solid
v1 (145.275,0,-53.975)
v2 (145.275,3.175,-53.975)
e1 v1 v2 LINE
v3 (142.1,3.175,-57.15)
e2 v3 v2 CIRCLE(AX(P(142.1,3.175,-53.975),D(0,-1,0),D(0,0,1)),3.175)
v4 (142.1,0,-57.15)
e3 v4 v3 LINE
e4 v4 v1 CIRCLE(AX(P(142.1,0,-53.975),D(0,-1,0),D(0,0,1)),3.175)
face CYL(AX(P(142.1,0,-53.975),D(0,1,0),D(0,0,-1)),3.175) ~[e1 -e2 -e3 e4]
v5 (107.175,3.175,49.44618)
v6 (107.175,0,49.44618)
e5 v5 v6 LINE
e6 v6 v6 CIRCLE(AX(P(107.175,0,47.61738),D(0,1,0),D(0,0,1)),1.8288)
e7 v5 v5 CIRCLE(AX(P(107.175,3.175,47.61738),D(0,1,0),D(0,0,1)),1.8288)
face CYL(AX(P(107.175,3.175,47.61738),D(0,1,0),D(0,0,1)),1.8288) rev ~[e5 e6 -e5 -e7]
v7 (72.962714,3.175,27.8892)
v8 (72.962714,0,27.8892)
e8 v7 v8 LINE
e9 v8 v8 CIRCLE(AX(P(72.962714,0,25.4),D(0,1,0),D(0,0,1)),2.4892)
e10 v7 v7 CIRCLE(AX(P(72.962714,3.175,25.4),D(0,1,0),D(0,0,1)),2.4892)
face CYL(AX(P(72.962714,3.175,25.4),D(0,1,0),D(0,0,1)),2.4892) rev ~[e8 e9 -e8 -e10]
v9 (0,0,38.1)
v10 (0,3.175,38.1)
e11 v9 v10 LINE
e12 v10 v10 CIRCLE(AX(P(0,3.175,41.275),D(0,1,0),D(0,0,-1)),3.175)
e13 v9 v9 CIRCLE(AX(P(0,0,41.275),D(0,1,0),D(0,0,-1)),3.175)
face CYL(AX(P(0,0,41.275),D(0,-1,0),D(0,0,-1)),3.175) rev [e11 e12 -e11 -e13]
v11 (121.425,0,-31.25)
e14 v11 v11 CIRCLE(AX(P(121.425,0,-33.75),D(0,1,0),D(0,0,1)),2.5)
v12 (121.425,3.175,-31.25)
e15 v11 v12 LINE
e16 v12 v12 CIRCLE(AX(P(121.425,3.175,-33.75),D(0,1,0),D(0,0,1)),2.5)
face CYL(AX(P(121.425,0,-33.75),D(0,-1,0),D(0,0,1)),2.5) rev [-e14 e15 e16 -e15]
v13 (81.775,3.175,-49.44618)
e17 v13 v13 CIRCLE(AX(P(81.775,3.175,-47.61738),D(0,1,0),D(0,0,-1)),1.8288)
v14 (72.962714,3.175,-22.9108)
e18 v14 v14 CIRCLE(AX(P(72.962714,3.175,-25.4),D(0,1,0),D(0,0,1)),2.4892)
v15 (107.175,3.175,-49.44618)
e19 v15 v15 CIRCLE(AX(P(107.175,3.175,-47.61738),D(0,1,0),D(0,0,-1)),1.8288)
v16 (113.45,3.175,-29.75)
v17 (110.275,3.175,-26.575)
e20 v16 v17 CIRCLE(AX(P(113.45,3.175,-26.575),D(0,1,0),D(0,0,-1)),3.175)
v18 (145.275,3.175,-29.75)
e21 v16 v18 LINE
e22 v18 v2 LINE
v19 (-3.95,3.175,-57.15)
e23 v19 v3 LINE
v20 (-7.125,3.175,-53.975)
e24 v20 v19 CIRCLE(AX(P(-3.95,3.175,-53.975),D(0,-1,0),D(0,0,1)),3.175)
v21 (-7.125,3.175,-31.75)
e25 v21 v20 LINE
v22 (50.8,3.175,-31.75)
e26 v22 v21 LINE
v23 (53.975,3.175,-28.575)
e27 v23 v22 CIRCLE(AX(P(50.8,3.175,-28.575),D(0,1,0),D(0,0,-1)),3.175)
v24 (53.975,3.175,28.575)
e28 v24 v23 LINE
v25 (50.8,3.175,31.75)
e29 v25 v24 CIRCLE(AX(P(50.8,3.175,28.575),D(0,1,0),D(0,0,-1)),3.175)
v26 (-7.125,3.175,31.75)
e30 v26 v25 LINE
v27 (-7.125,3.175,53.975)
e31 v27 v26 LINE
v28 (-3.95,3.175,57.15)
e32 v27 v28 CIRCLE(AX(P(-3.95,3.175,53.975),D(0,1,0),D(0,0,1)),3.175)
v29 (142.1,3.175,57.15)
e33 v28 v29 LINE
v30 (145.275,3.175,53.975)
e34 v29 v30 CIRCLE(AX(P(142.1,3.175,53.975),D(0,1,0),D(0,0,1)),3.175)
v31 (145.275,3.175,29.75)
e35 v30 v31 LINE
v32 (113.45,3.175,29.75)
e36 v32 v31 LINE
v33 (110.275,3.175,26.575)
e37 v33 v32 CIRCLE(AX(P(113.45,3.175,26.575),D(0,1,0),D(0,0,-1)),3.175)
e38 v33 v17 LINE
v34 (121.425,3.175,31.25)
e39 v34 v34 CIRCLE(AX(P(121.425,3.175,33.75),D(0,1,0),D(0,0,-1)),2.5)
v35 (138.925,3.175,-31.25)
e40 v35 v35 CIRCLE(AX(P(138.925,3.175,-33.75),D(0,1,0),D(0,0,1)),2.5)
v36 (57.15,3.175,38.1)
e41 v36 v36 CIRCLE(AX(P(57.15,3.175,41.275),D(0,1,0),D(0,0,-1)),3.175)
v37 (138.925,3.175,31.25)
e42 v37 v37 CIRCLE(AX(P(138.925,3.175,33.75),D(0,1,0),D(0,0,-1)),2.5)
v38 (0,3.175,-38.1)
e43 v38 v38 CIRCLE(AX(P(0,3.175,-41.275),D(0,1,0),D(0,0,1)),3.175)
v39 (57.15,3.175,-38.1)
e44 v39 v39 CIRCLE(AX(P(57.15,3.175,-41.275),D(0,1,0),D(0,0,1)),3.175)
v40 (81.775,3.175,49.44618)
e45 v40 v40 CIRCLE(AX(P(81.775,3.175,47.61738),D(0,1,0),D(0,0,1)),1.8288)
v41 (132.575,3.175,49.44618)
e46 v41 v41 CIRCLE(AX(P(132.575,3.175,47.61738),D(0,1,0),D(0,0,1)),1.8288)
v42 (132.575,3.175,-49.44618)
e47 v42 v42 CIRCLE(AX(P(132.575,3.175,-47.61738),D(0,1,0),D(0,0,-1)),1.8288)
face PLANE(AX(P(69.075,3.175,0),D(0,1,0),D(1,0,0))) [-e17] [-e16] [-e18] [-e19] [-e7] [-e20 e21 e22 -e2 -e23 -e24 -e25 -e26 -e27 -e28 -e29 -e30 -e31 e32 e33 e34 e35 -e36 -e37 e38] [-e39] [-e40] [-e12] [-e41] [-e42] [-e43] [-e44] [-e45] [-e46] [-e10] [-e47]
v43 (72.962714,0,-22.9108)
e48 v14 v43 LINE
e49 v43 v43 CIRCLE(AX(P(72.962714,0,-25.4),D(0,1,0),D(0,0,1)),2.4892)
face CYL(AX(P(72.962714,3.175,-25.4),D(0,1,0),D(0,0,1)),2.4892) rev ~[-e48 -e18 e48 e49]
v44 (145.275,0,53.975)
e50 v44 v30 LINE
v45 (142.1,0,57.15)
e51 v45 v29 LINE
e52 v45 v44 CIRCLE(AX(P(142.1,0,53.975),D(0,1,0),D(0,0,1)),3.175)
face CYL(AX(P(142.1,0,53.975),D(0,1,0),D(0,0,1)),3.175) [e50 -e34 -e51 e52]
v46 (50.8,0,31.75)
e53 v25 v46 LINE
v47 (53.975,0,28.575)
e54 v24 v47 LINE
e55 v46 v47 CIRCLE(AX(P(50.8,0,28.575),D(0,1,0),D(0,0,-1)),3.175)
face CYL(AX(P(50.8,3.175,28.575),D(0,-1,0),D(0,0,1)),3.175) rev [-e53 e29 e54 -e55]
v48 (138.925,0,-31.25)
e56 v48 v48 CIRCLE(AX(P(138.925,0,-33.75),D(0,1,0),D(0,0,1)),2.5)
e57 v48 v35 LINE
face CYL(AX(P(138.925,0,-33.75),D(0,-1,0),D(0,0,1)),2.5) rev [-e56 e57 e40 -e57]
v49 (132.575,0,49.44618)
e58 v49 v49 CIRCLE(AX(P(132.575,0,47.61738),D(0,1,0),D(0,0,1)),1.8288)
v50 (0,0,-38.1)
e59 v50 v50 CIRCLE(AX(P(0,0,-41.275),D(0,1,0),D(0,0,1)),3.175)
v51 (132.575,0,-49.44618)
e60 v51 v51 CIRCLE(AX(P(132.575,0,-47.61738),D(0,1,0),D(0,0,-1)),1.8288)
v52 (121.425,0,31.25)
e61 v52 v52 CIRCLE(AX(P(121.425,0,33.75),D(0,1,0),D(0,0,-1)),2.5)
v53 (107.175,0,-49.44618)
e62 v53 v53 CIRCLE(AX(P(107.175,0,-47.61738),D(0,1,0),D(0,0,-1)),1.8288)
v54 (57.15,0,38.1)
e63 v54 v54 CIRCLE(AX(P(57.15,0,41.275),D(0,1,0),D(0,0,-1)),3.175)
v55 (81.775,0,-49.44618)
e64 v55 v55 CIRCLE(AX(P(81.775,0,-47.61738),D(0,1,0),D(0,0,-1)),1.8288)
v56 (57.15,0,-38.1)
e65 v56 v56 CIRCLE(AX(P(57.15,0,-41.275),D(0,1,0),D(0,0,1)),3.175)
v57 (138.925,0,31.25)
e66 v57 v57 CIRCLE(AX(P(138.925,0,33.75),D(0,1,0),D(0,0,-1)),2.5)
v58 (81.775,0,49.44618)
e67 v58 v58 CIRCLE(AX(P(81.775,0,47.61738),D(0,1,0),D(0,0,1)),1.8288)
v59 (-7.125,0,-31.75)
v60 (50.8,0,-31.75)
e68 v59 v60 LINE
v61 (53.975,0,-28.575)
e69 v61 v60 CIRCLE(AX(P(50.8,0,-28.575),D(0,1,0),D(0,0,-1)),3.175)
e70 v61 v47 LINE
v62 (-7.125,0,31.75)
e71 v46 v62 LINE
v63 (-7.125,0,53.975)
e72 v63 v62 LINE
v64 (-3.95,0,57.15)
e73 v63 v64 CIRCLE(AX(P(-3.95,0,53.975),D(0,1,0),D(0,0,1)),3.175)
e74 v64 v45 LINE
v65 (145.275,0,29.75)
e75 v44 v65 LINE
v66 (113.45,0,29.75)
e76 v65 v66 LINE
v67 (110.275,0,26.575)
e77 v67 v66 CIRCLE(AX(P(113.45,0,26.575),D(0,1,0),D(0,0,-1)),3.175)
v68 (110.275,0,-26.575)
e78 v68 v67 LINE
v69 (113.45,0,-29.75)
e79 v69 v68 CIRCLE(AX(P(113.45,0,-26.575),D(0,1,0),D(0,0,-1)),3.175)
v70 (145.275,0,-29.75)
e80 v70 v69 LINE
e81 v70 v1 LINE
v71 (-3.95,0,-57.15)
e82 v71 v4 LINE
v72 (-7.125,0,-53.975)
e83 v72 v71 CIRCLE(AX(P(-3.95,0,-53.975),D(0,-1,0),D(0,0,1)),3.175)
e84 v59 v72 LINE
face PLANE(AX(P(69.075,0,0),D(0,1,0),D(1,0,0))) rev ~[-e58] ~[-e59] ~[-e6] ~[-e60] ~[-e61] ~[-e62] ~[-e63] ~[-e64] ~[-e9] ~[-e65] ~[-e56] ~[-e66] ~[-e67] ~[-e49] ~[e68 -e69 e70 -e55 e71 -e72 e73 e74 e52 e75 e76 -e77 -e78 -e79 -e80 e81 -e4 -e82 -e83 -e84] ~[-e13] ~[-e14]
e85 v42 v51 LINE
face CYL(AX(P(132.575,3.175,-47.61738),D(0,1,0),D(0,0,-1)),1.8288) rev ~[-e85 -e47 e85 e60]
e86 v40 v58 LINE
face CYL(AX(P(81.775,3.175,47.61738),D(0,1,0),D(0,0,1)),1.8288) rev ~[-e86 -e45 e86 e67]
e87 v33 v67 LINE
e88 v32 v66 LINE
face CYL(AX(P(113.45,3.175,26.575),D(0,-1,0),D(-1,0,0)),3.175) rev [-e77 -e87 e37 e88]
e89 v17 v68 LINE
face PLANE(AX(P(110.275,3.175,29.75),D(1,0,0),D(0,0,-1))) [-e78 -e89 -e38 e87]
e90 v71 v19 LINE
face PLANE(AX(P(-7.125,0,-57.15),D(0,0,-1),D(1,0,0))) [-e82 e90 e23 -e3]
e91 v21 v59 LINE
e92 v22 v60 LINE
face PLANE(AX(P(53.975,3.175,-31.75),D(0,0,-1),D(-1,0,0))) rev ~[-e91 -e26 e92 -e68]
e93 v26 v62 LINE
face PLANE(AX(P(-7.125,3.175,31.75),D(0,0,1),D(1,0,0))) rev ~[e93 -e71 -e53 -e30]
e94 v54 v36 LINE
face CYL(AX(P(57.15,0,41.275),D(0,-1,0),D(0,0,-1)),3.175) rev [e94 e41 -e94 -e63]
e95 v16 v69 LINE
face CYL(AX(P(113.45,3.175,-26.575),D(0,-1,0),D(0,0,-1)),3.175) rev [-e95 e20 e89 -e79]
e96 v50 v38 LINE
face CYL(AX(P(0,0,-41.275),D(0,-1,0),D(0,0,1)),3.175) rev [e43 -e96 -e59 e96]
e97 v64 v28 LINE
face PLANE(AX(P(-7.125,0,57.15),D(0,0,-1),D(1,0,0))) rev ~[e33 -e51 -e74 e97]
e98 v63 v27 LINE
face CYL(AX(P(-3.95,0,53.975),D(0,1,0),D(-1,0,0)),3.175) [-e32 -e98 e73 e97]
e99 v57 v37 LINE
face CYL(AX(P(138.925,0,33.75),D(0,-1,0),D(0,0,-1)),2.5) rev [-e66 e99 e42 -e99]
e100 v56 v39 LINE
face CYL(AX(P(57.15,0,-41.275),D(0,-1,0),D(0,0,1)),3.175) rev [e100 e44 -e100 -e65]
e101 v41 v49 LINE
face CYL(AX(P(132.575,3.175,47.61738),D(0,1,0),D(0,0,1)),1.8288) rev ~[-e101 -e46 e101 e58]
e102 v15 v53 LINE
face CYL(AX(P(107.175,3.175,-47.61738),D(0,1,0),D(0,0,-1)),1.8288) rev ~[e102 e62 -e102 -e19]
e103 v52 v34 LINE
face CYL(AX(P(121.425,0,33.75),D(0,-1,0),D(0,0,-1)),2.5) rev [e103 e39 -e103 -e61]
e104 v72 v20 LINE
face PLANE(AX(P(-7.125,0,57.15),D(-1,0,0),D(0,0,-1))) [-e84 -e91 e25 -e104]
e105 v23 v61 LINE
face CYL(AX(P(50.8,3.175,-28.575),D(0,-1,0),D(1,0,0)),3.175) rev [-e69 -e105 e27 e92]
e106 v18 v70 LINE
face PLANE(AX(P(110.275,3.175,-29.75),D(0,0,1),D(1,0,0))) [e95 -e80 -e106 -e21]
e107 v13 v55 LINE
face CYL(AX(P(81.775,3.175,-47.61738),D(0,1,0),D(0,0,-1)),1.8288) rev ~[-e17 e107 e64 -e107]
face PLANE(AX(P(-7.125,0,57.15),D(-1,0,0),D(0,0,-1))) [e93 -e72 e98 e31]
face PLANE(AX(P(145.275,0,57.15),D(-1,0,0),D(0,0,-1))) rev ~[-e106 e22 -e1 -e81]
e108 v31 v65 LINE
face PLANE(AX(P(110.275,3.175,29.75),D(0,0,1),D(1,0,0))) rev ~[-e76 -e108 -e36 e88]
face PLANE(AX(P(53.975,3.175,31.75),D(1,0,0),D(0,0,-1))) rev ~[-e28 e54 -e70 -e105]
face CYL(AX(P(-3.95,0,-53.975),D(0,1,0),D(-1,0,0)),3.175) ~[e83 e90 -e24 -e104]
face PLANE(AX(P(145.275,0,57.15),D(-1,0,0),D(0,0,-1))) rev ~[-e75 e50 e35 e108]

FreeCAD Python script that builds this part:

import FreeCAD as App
import Part
import Sketcher
Q = App.Units.Quantity


def edges_at(feature, points):
    """Names of the edges that pass closest to the given points."""
    edges = feature.Shape.Edges
    near = lambda p: min(range(len(edges)), key=lambda i: edges[i].distToShape(Part.Vertex(*p))[0])
    return sorted({f"Edge{near(p) + 1}" for p in points})

doc = App.newDocument("Part")
body = doc.addObject("PartDesign::Body", "Body")

# Sketch on XZ plane
sketch1 = doc.addObject("Sketcher::SketchObject", "Sketch")
body.addObject(sketch1)
sketch1.AttachmentSupport = (doc.XZ_Plane, [""])
sketch1.MapMode = "FlatFace"
sketch1.addGeometry([
    Part.LineSegment(App.Vector(-7.125, -57.15, 0), App.Vector(-7.125, 57.15, 0)),  # 0
    Part.LineSegment(App.Vector(-7.125, 57.15, 0), App.Vector(145.275, 57.15, 0)),  # 1
    Part.LineSegment(App.Vector(145.275, 57.15, 0), App.Vector(145.275, -57.15, 0)),  # 2
    Part.LineSegment(App.Vector(145.275, -57.15, 0), App.Vector(-7.125, -57.15, 0)),  # 3
    Part.Circle(App.Vector(0, 41.275, 0), App.Vector(0, 0, 1), 3.175),  # 4
    Part.Circle(App.Vector(57.15, 41.275, 0), App.Vector(0, 0, 1), 3.175),  # 5
    Part.Circle(App.Vector(121.425, 33.75, 0), App.Vector(0, 0, 1), 2.5),  # 6
    Part.Circle(App.Vector(138.925, 33.75, 0), App.Vector(0, 0, 1), 2.5),  # 7
    Part.Circle(App.Vector(0, -41.275, 0), App.Vector(0, 0, 1), 3.175),  # 8
    Part.Circle(App.Vector(57.15, -41.275, 0), App.Vector(0, 0, 1), 3.175),  # 9
    Part.Circle(App.Vector(121.425, -33.75, 0), App.Vector(0, 0, 1), 2.5),  # 10
    Part.Circle(App.Vector(138.925, -33.75, 0), App.Vector(0, 0, 1), 2.5),  # 11
], False)
sketch1.addConstraint([
    Sketcher.Constraint("Coincident", 0, 2, 1, 1),
    Sketcher.Constraint("Coincident", 1, 2, 2, 1),
    Sketcher.Constraint("Coincident", 2, 2, 3, 1),
    Sketcher.Constraint("Coincident", 3, 2, 0, 1),
    Sketcher.Constraint("Vertical", 0),
    Sketcher.Constraint("Horizontal", 1),
    Sketcher.Constraint("Vertical", 2),
    Sketcher.Constraint("Horizontal", 3),
    Sketcher.Constraint("Equal", 4, 5),
    Sketcher.Constraint("Equal", 6, 7),
    Sketcher.Constraint("Equal", 5, 8),
    Sketcher.Constraint("Equal", 8, 9),
    Sketcher.Constraint("Equal", 7, 10),
    Sketcher.Constraint("Equal", 10, 11),
    Sketcher.Constraint("Symmetric", 4, 3, 8, 3, -1, 1),
    Sketcher.Constraint("Symmetric", 5, 3, 9, 3, -1),
    Sketcher.Constraint("Symmetric", 6, 3, 10, 3, -1),
    Sketcher.Constraint("Symmetric", 7, 3, 11, 3, -1),
    Sketcher.Constraint("PointOnObject", 4, 3, -2),
    Sketcher.Constraint("Horizontal", 4, 3, 5, 3),
    Sketcher.Constraint("Horizontal", 6, 3, 7, 3),
    Sketcher.Constraint("Diameter", 4, Q("0.25 in")),
    Sketcher.Constraint("DistanceX", 1, 1, 1, 2, Q("6 in")),
    Sketcher.Constraint("DistanceY", 0, 1, 0, 2, Q("4.5 in")),
    Sketcher.Constraint("Diameter", 6, 5.0),
    Sketcher.Constraint("DistanceX", -1, 1, 5, 3, Q("2.25 in")),
    Sketcher.Constraint("DistanceY", -1, 1, 0, 2, Q("2.25 in")),
    Sketcher.Constraint("DistanceY", 8, 3, 4, 3, Q("3.25 in")),
    Sketcher.Constraint("DistanceX", 7, 3, 1, 2, Q("0.25 in")),
    Sketcher.Constraint("DistanceX", -1, 1, 6, 3, 121.425),
    Sketcher.Constraint("DistanceY", -1, 1, 6, 3, 33.75),
    Sketcher.Constraint("DistanceX", -1, 1, 7, 3, 138.925),
])
pad1 = doc.addObject("PartDesign::Pad", "Pad")
body.addObject(pad1)
pad1.Profile = sketch1
pad1.Length = Q("0.125 in")
pad1.Reversed = True

# Sketch on XZ plane
sketch2 = doc.addObject("Sketcher::SketchObject", "Sketch001")
body.addObject(sketch2)
sketch2.AttachmentSupport = (doc.XZ_Plane, [""])
sketch2.MapMode = "FlatFace"
sketch2.AttachmentOffset = App.Placement(App.Vector(0, 0, -0.125 * 25.4), App.Rotation())
sketch2.addGeometry([
    Part.LineSegment(App.Vector(110.275, -29.75, 0), App.Vector(110.275, 29.75, 0)),
    Part.LineSegment(App.Vector(110.275, 29.75, 0), App.Vector(145.275, 29.75, 0)),
    Part.LineSegment(App.Vector(145.275, 29.75, 0), App.Vector(145.275, -29.75, 0)),
    Part.LineSegment(App.Vector(145.275, -29.75, 0), App.Vector(110.275, -29.75, 0)),
], False)
sketch2.addConstraint([
    Sketcher.Constraint("Coincident", 0, 2, 1, 1),
    Sketcher.Constraint("Coincident", 1, 2, 2, 1),
    Sketcher.Constraint("Coincident", 2, 2, 3, 1),
    Sketcher.Constraint("Coincident", 3, 2, 0, 1),
    Sketcher.Constraint("Vertical", 0),
    Sketcher.Constraint("Horizontal", 1),
    Sketcher.Constraint("Vertical", 2),
    Sketcher.Constraint("Horizontal", 3),
    Sketcher.Constraint("DistanceX", 1, 1, 1, 2, 35.0),
    Sketcher.Constraint("DistanceY", 0, 1, 0, 2, 59.5),
    Sketcher.Constraint("DistanceX", -1, 1, 0, 2, 110.275),
    Sketcher.Constraint("DistanceY", -1, 1, 0, 2, 29.75),
])
pocket1 = doc.addObject("PartDesign::Pocket", "Pocket")
body.addObject(pocket1)
pocket1.Profile = sketch2
pocket1.Type = "UpToFirst"
pocket1.Reversed = True

# Sketch on XZ plane
sketch3 = doc.addObject("Sketcher::SketchObject", "Sketch002")
body.addObject(sketch3)
sketch3.AttachmentSupport = (doc.XZ_Plane, [""])
sketch3.MapMode = "FlatFace"
sketch3.AttachmentOffset = App.Placement(App.Vector(0, 0, -0.125 * 25.4), App.Rotation())
sketch3.addGeometry([
    Part.LineSegment(App.Vector(-7.125, 31.75, 0), App.Vector(53.975, 31.75, 0)),
    Part.LineSegment(App.Vector(53.975, 31.75, 0), App.Vector(53.975, -31.75, 0)),
    Part.LineSegment(App.Vector(53.975, -31.75, 0), App.Vector(-7.125, -31.75, 0)),
    Part.LineSegment(App.Vector(-7.125, -31.75, 0), App.Vector(-7.125, 31.75, 0)),
], False)
sketch3.addConstraint([
    Sketcher.Constraint("Coincident", 0, 2, 1, 1),
    Sketcher.Constraint("Coincident", 1, 2, 2, 1),
    Sketcher.Constraint("Coincident", 2, 2, 3, 1),
    Sketcher.Constraint("Coincident", 3, 2, 0, 1),
    Sketcher.Constraint("Horizontal", 0),
    Sketcher.Constraint("Vertical", 1),
    Sketcher.Constraint("Horizontal", 2),
    Sketcher.Constraint("Vertical", 3),
    Sketcher.Constraint("DistanceY", 1, 2, 1, 1, Q("2.5 in")),
    Sketcher.Constraint("DistanceY", -1, 1, 0, 2, Q("1.25 in")),
    Sketcher.Constraint("DistanceX", -1, 1, 0, 2, Q("2.125 in")),
    Sketcher.Constraint("DistanceX", 0, 1, 0, 2, 61.1),
])
pocket2 = doc.addObject("PartDesign::Pocket", "Pocket001")
body.addObject(pocket2)
pocket2.Profile = sketch3
pocket2.Type = "UpToFirst"
pocket2.Reversed = True
doc.recompute()

fillet = doc.addObject("PartDesign::Fillet", "Fillet")
body.addObject(fillet)
fillet.Base = (pocket2, edges_at(pocket2, [
    (110.275, 1.587, 29.75),
    (110.275, 1.587, -29.75),
    (53.975, 1.587, 31.75),
    (53.975, 1.587, -31.75),
    (145.275, 1.587, -57.15),
    (145.275, 1.587, 57.15),
    (-7.125, 1.587, 57.15),
    (-7.125, 1.587, -57.15),
]))
fillet.Radius = Q("0.125 in")

# Sketch on XZ plane
sketch4 = doc.addObject("Sketcher::SketchObject", "Sketch003")
body.addObject(sketch4)
sketch4.AttachmentSupport = (doc.XZ_Plane, [""])
sketch4.MapMode = "FlatFace"
sketch4.AttachmentOffset = App.Placement(App.Vector(0, 0, -0.125 * 25.4), App.Rotation())
sketch4.addGeometry([
    Part.Circle(App.Vector(72.962714, -25.4, 0), App.Vector(0, 0, 1), 2.4892),
    Part.Circle(App.Vector(72.962714, 25.4, 0), App.Vector(0, 0, 1), 2.4892),
], False)
sketch4.addConstraint([
    Sketcher.Constraint("Equal", 0, 1),
    Sketcher.Constraint("Symmetric", 0, 3, 1, 3, -1),
    Sketcher.Constraint("Diameter", 0, Q("0.196 in")),
    Sketcher.Constraint("DistanceY", 0, 3, -1, 1, Q("1 in")),
    Sketcher.Constraint("DistanceX", -1, 1, 0, 3, 72.962714),
])
pocket3 = doc.addObject("PartDesign::Pocket", "Pocket002")
body.addObject(pocket3)
pocket3.Profile = sketch4
pocket3.Type = "ThroughAll"
pocket3.Reversed = True

# Sketch on XZ plane
sketch5 = doc.addObject("Sketcher::SketchObject", "Sketch004")
body.addObject(sketch5)
sketch5.AttachmentSupport = (doc.XZ_Plane, [""])
sketch5.MapMode = "FlatFace"
sketch5.AttachmentOffset = App.Placement(App.Vector(0, 0, -0.125 * 25.4), App.Rotation())
sketch5.addGeometry([
    Part.Circle(App.Vector(132.575, 47.61738, 0), App.Vector(0, 0, 1), 1.8288),  # 0
    Part.Circle(App.Vector(81.775, 47.61738, 0), App.Vector(0, 0, 1), 1.8288),  # 1
    Part.Circle(App.Vector(107.175, 47.61738, 0), App.Vector(0, 0, 1), 1.8288),  # 2
    Part.Circle(App.Vector(107.175, -47.61738, 0), App.Vector(0, 0, 1), 1.8288),  # 3
    Part.Circle(App.Vector(81.775, -47.61738, 0), App.Vector(0, 0, 1), 1.8288),  # 4
    Part.Circle(App.Vector(132.575, -47.61738, 0), App.Vector(0, 0, 1), 1.8288),  # 5
], False)
sketch5.addConstraint([
    Sketcher.Constraint("Equal", 0, 1),
    Sketcher.Constraint("Equal", 1, 2),
    Sketcher.Constraint("Equal", 2, 3),
    Sketcher.Constraint("Equal", 3, 4),
    Sketcher.Constraint("Equal", 4, 5),
    Sketcher.Constraint("Symmetric", 2, 3, 3, 3, -1),
    Sketcher.Constraint("Symmetric", 1, 3, 4, 3, -1),
    Sketcher.Constraint("Symmetric", 0, 3, 5, 3, -1),
    Sketcher.Constraint("Horizontal", 0, 3, 1, 3),
    Sketcher.Constraint("Horizontal", 1, 3, 2, 3),
    Sketcher.Constraint("Diameter", 0, Q("0.144 in")),
    Sketcher.Constraint("DistanceX", 1, 3, 0, 3, Q("2 in")),
    Sketcher.Constraint("DistanceX", 2, 3, 0, 3, Q("1 in")),
    Sketcher.Constraint("DistanceY", -1, 1, 0, 3, Q("1.8747 in")),
    Sketcher.Constraint("DistanceX", -1, 1, 0, 3, 132.575),
])
pocket4 = doc.addObject("PartDesign::Pocket", "Pocket003")
body.addObject(pocket4)
pocket4.Profile = sketch5
pocket4.Type = "ThroughAll"
pocket4.Reversed = True

doc.recompute()
